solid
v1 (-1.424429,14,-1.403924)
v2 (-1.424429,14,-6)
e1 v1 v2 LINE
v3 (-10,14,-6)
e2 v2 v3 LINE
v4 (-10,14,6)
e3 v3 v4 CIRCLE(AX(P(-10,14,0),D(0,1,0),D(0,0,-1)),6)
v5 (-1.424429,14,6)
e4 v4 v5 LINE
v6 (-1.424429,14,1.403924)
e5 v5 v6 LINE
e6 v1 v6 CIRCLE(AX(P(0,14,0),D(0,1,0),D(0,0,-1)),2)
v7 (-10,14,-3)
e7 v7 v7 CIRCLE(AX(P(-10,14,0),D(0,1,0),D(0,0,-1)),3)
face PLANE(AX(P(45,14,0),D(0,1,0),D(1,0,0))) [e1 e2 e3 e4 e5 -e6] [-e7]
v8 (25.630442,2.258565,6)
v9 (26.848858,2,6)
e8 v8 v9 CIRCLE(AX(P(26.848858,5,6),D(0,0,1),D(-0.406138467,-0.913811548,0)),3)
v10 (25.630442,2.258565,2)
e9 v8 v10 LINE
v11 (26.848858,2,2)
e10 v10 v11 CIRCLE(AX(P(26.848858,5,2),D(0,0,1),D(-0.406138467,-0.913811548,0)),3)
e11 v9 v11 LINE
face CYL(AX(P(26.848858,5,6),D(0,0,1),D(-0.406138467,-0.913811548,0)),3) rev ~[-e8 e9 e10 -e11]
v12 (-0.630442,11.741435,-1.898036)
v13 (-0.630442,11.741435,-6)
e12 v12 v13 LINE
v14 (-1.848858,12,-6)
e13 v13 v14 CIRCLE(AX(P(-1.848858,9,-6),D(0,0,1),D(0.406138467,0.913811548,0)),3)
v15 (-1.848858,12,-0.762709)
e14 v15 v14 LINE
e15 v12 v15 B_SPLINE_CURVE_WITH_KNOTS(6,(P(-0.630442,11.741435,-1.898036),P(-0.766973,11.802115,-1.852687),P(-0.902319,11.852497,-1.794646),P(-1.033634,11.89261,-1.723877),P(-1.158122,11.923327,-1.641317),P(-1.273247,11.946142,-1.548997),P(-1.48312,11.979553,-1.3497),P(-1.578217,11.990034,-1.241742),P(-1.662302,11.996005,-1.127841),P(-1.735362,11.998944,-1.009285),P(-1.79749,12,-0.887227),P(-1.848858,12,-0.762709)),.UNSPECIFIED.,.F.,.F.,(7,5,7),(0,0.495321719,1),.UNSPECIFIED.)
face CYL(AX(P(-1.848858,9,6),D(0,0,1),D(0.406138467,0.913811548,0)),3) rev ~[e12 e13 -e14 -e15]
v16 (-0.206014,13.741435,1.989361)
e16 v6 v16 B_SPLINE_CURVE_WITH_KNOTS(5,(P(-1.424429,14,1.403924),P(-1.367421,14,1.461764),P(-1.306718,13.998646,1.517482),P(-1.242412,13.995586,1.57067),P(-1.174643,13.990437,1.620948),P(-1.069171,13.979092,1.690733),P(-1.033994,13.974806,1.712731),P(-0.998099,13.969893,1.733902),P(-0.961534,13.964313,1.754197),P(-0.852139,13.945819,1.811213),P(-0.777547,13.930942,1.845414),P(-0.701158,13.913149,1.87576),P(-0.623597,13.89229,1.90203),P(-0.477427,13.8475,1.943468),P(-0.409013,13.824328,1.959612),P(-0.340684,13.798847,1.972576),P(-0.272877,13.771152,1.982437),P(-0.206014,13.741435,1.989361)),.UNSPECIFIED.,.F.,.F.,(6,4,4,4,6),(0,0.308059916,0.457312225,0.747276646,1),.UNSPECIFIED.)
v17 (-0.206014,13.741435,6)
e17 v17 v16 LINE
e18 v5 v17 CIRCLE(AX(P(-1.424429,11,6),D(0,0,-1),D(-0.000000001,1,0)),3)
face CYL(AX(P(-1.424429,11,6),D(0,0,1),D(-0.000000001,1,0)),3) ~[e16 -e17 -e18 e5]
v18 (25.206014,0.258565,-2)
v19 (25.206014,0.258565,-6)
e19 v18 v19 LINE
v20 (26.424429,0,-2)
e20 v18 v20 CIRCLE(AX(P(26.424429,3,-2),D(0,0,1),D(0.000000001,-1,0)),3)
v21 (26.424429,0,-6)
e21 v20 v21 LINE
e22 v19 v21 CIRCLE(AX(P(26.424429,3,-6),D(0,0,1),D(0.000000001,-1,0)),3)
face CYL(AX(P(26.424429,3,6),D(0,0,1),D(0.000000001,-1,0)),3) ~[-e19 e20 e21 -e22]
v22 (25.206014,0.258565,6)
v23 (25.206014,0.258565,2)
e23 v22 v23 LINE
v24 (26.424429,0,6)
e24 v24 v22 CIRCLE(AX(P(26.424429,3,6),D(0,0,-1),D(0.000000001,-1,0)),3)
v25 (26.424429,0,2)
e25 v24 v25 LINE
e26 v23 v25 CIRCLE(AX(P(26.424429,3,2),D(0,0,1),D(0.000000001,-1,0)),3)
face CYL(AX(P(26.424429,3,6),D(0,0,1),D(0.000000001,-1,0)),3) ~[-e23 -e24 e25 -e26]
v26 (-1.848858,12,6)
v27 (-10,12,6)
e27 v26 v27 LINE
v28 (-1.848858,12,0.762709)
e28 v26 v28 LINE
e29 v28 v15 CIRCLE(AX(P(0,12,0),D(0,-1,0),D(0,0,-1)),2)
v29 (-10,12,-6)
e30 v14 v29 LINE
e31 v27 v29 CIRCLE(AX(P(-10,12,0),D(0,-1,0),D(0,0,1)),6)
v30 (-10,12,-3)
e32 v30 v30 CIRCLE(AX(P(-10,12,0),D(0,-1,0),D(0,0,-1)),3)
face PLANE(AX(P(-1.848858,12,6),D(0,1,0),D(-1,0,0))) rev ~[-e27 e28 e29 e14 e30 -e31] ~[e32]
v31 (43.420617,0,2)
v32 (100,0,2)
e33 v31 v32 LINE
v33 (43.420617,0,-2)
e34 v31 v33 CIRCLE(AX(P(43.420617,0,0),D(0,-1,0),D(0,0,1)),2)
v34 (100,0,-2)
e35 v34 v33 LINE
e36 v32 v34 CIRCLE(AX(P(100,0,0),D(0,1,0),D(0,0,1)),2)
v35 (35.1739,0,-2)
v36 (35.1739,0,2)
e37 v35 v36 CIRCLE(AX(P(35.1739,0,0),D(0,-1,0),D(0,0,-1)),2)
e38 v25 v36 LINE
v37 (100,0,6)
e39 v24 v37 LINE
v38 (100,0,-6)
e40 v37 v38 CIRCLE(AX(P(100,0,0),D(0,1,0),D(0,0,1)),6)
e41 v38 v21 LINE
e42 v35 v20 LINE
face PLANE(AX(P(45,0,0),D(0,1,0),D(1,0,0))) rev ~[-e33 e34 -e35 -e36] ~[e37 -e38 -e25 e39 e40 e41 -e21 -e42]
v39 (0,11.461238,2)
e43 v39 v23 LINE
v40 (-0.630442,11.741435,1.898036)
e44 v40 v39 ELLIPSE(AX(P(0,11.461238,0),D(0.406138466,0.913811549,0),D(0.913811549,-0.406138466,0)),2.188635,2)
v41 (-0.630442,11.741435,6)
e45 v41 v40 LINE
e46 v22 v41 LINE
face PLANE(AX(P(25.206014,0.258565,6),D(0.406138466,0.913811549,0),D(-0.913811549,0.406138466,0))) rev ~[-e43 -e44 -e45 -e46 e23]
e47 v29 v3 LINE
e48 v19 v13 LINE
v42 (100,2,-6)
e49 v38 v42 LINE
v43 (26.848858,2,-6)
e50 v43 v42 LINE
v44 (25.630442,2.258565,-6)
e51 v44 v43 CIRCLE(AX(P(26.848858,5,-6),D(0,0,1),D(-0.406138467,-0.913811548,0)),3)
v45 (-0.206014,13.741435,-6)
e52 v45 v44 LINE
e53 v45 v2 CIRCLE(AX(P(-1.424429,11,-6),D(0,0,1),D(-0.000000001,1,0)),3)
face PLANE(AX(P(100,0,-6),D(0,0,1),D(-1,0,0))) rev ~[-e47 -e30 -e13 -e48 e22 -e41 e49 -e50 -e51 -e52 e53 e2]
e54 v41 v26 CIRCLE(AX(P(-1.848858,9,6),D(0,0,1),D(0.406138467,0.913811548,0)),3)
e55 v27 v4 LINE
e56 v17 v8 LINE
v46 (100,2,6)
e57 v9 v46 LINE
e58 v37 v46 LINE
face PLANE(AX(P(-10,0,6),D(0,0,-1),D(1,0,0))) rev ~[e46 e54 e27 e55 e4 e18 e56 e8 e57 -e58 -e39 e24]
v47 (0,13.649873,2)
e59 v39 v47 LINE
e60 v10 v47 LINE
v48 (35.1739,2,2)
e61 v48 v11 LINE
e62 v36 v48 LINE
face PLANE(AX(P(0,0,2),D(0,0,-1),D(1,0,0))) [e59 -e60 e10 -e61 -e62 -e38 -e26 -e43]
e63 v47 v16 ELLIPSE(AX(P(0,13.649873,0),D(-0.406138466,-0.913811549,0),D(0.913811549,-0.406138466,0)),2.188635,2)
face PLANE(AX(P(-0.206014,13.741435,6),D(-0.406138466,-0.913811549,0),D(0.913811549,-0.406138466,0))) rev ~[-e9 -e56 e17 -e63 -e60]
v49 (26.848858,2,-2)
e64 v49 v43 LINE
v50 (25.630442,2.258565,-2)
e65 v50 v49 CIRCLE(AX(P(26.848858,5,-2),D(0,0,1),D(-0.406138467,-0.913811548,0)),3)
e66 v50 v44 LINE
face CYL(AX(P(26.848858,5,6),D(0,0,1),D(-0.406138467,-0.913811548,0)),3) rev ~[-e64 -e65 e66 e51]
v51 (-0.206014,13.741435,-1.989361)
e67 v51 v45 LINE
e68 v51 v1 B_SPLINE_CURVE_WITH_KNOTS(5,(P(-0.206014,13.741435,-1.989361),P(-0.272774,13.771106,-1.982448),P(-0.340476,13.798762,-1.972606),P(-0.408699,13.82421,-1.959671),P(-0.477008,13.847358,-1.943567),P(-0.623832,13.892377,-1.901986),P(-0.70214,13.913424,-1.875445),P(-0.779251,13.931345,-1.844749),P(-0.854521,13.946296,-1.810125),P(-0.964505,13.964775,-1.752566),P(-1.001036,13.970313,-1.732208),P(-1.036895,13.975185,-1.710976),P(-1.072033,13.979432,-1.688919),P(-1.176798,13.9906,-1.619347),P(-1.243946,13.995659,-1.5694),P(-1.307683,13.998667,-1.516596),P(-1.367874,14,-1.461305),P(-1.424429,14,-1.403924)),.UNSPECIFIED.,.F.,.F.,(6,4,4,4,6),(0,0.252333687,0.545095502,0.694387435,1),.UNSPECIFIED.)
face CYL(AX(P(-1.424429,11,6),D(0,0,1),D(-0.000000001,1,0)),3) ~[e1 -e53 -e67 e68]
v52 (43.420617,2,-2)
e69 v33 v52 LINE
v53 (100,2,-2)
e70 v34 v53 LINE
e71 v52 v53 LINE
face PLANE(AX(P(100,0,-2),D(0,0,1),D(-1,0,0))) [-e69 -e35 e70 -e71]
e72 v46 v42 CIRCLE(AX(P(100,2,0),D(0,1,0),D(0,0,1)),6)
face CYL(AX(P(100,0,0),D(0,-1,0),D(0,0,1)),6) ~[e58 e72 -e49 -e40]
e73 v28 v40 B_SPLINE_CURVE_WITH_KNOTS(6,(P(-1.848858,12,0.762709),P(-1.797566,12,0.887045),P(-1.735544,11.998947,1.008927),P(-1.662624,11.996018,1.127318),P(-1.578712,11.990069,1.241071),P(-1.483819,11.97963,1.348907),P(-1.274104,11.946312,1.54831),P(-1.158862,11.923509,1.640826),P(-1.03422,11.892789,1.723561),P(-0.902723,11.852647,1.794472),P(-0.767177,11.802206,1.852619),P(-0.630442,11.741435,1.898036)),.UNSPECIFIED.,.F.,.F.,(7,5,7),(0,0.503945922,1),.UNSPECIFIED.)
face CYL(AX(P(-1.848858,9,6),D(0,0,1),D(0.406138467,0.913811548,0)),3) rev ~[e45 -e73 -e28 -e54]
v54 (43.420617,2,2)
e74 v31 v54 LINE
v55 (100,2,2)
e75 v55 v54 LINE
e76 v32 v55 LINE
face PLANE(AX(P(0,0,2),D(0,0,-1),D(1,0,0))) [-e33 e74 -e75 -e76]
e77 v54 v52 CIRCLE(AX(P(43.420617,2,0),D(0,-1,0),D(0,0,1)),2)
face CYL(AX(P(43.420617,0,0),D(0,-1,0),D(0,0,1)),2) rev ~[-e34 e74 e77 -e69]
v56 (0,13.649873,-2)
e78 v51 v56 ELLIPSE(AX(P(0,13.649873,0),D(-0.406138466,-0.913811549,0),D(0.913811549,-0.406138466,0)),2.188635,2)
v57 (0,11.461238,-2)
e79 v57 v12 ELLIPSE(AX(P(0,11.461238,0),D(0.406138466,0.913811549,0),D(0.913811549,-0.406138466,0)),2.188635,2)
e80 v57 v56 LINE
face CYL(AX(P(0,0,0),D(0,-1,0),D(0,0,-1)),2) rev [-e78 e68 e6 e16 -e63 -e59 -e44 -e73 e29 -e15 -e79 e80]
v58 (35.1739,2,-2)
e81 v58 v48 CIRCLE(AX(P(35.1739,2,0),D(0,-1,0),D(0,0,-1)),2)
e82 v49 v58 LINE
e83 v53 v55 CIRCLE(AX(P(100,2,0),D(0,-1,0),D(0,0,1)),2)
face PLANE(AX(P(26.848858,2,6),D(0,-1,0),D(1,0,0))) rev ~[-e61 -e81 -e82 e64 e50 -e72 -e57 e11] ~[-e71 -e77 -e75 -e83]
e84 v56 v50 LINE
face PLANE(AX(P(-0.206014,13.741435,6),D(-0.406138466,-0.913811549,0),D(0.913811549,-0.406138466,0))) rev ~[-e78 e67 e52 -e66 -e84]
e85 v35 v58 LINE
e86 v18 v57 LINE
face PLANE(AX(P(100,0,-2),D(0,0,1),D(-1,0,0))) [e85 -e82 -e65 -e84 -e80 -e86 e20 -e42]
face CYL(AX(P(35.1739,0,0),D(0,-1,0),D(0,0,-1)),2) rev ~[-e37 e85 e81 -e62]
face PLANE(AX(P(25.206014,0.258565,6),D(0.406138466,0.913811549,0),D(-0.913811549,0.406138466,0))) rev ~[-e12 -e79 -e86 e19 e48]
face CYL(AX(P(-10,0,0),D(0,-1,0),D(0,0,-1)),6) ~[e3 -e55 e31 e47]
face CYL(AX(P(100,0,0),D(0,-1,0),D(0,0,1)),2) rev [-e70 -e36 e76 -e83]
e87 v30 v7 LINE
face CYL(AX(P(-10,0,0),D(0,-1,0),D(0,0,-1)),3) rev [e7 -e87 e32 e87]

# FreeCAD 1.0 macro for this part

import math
import FreeCAD as App
import Part
import Sketcher
from FreeCAD import Vector

doc = App.newDocument("Part")
params = doc.addObject("Spreadsheet::Sheet", "Params")
for row, (alias, value) in enumerate([
    ("sketch1_diameter", "6 mm"),
    ("sketch1_radius", "6 mm"),
    ("sketch1_radius2", "2 mm"),
    ("sketch1_width", "110 mm"),
    ("pad1_length", "14 mm"),
    ("sketch2_radius", "3 mm"),
    ("sketch2_height", "12 mm"),
], start=1):
    params.set(f"A{row}", alias)
    params.set(f"B{row}", "=" + value)
    params.setAlias(f"B{row}", alias)

body = doc.addObject("PartDesign::Body", "Body")

# Sketch on XZ plane
sketch1 = body.newObject("Sketcher::SketchObject", "Sketch")
sketch1.AttachmentSupport = (doc.getObject("XZ_Plane"), [""])
sketch1.MapMode = "FlatFace"
sketch1.addGeometry([
    Part.LineSegment(Vector(100, -6, 0), Vector(-10, -6, 0)),  # 0
    Part.ArcOfCircle(Part.Circle(Vector(-10, 0, 0), Vector(0, 0, 1), 6), math.radians(90), math.radians(270)),  # 1
    Part.LineSegment(Vector(-10, 6, 0), Vector(100, 6, 0)),  # 2
    Part.ArcOfCircle(Part.Circle(Vector(100, 0, 0), Vector(0, 0, 1), 6), math.radians(-90), math.radians(90)),  # 3
    Part.Circle(Vector(-10, 0, 0), Vector(0, 0, 1), 3),  # 4
    Part.ArcOfCircle(Part.Circle(Vector(100, 0, 0), Vector(0, 0, 1), 2), math.radians(-90), math.radians(90)),  # 5
    Part.LineSegment(Vector(100, 2, 0), Vector(43.4, 2, 0)),  # 6
    Part.ArcOfCircle(Part.Circle(Vector(43.4, 0, 0), Vector(0, 0, 1), 2), math.radians(90), math.radians(270)),  # 7
    Part.LineSegment(Vector(43.4, -2, 0), Vector(100, -2, 0)),  # 8
    Part.LineSegment(Vector(0, -2, 0), Vector(35.2, -2, 0)),  # 9
    Part.ArcOfCircle(Part.Circle(Vector(35.2, 0, 0), Vector(0, 0, 1), 2), math.radians(-90), math.radians(90)),  # 10
    Part.LineSegment(Vector(35.2, 2, 0), Vector(0, 2, 0)),  # 11
    Part.ArcOfCircle(Part.Circle(Vector(0, 0, 0), Vector(0, 0, 1), 2), math.radians(90), math.radians(270)),  # 12
], False)
sketch1.addConstraint([
    Sketcher.Constraint("Tangent", 0, 2, 1, 2),
    Sketcher.Constraint("Tangent", 1, 1, 2, 1),
    Sketcher.Constraint("Tangent", 2, 2, 3, 2),
    Sketcher.Constraint("Tangent", 3, 1, 0, 1),
    Sketcher.Constraint("Tangent", 5, 2, 6, 1),
    Sketcher.Constraint("Tangent", 6, 2, 7, 1),
    Sketcher.Constraint("Tangent", 7, 2, 8, 1),
    Sketcher.Constraint("Tangent", 8, 2, 5, 1),
    Sketcher.Constraint("Tangent", 9, 2, 10, 1),
    Sketcher.Constraint("Tangent", 10, 2, 11, 1),
    Sketcher.Constraint("Tangent", 11, 2, 12, 1),
    Sketcher.Constraint("Tangent", 12, 2, 9, 1),
    Sketcher.Constraint("Horizontal", 0),
    Sketcher.Constraint("Horizontal", 2),
    Sketcher.Constraint("Horizontal", 6),
    Sketcher.Constraint("Horizontal", 8),
    Sketcher.Constraint("Horizontal", 9),
    Sketcher.Constraint("Horizontal", 11),
    Sketcher.Constraint("Coincident", 12, 3, -1, 1),
    Sketcher.Constraint("Coincident", 4, 3, 1, 3),
    Sketcher.Constraint("Coincident", 5, 3, 3, 3),
    Sketcher.Constraint("Equal", 7, 10),
    Sketcher.Constraint("PointOnObject", 1, 3, -1),
    Sketcher.Constraint("Diameter", 4, 6.0),
    Sketcher.Constraint("Radius", 1, 6.0),
    Sketcher.Constraint("Radius", 5, 2.0),
    Sketcher.Constraint("DistanceX", 0, 2, 0, 1, 110.0),
    Sketcher.Constraint("DistanceX", 1, 3, -1, 1, 10.0),
    Sketcher.Constraint("DistanceX", 9, 1, 9, 2, 35.1739),
    Sketcher.Constraint("DistanceX", 6, 2, 6, 1, 56.579383),
])
sketch1.setExpression("Constraints[23]", "Params.sketch1_diameter")
sketch1.setExpression("Constraints[24]", "Params.sketch1_radius")
sketch1.setExpression("Constraints[25]", "Params.sketch1_radius2")
sketch1.setExpression("Constraints[26]", "Params.sketch1_width")
pad1 = body.newObject("PartDesign::Pad", "Pad")
pad1.Profile = sketch1
pad1.setExpression("Length", "Params.pad1_length")
pad1.Reversed = True

# Sketch on XY plane
sketch2 = body.newObject("Sketcher::SketchObject", "Sketch001")
sketch2.AttachmentSupport = (doc.getObject("XY_Plane"), [""])
sketch2.MapMode = "FlatFace"
sketch2.AttachmentOffset = App.Placement(Vector(0, 0, 6), App.Rotation())
sketch2.addGeometry([
    Part.ArcOfCircle(Part.Circle(Vector(26.4, 3, 0), Vector(0, 0, 1), 3), math.radians(-114), math.radians(-90)),  # 0
    Part.LineSegment(Vector(25.2, 0.3, 0), Vector(-0.6, 11.7, 0)),  # 1
    Part.ArcOfCircle(Part.Circle(Vector(-1.8, 9, 0), Vector(0, 0, 1), 3), math.radians(66), math.radians(90)),  # 2
    Part.LineSegment(Vector(-1.8, 12, 0), Vector(-16, 12, 0)),  # 3
    Part.LineSegment(Vector(-16, 12, 0), Vector(-16, 0, 0)),  # 4
    Part.LineSegment(Vector(-16, 0, 0), Vector(26.4, 0, 0)),  # 5
    Part.LineSegment(Vector(26.8, 2, 0), Vector(106, 2, 0)),  # 6
    Part.LineSegment(Vector(106, 2, 0), Vector(106, 14, 0)),  # 7
    Part.LineSegment(Vector(106, 14, 0), Vector(-1.4, 14, 0)),  # 8
    Part.ArcOfCircle(Part.Circle(Vector(-1.4, 11, 0), Vector(0, 0, 1), 3), math.radians(66), math.radians(90)),  # 9
    Part.LineSegment(Vector(-0.2, 13.7, 0), Vector(25.6, 2.3, 0)),  # 10
    Part.ArcOfCircle(Part.Circle(Vector(26.8, 5, 0), Vector(0, 0, 1), 3), math.radians(-114), math.radians(-90)),  # 11
], False)
sketch2.addConstraint([
    Sketcher.Constraint("Tangent", 0, 1, 1, 1),
    Sketcher.Constraint("Tangent", 1, 2, 2, 1),
    Sketcher.Constraint("Tangent", 2, 2, 3, 1),
    Sketcher.Constraint("Coincident", 3, 2, 4, 1),
    Sketcher.Constraint("Coincident", 4, 2, 5, 1),
    Sketcher.Constraint("Tangent", 5, 2, 0, 2),
    Sketcher.Constraint("Coincident", 6, 2, 7, 1),
    Sketcher.Constraint("Coincident", 7, 2, 8, 1),
    Sketcher.Constraint("Tangent", 8, 2, 9, 2),
    Sketcher.Constraint("Tangent", 9, 1, 10, 1),
    Sketcher.Constraint("Tangent", 10, 2, 11, 1),
    Sketcher.Constraint("Tangent", 11, 2, 6, 1),
    Sketcher.Constraint("Horizontal", 3),
    Sketcher.Constraint("Vertical", 4),
    Sketcher.Constraint("Horizontal", 5),
    Sketcher.Constraint("Horizontal", 6),
    Sketcher.Constraint("Vertical", 7),
    Sketcher.Constraint("Horizontal", 8),
    Sketcher.Constraint("Equal", 0, 2),
    Sketcher.Constraint("Equal", 2, 9),
    Sketcher.Constraint("Equal", 9, 11),
    Sketcher.Constraint("PointOnObject", 4, 2, -1),
    Sketcher.Constraint("Parallel", 1, 10),
    Sketcher.Constraint("Equal", 4, 7),
    Sketcher.Constraint("Radius", 0, 3.0),
    Sketcher.Constraint("DistanceY", 4, 2, 4, 1, 12.0),
    Sketcher.Constraint("DistanceY", -1, 1, 9, 3, 11.0),
    Sketcher.Constraint("DistanceX", 3, 2, -1, 1, 16.0),
    Sketcher.Constraint("DistanceX", -1, 1, 6, 2, 106.0),
    Sketcher.Constraint("DistanceX", 5, 1, 5, 2, 42.424429),
    Sketcher.Constraint("DistanceX", 8, 2, 8, 1, 107.424429),
    Sketcher.Constraint("DistanceX", 1, 2, 11, 3, 27.4793),
])
sketch2.setExpression("Constraints[24]", "Params.sketch2_radius")
sketch2.setExpression("Constraints[25]", "Params.sketch2_height")
pocket1 = body.newObject("PartDesign::Pocket", "Pocket")
pocket1.Profile = sketch2
pocket1.Type = "ThroughAll"

doc.recompute()
